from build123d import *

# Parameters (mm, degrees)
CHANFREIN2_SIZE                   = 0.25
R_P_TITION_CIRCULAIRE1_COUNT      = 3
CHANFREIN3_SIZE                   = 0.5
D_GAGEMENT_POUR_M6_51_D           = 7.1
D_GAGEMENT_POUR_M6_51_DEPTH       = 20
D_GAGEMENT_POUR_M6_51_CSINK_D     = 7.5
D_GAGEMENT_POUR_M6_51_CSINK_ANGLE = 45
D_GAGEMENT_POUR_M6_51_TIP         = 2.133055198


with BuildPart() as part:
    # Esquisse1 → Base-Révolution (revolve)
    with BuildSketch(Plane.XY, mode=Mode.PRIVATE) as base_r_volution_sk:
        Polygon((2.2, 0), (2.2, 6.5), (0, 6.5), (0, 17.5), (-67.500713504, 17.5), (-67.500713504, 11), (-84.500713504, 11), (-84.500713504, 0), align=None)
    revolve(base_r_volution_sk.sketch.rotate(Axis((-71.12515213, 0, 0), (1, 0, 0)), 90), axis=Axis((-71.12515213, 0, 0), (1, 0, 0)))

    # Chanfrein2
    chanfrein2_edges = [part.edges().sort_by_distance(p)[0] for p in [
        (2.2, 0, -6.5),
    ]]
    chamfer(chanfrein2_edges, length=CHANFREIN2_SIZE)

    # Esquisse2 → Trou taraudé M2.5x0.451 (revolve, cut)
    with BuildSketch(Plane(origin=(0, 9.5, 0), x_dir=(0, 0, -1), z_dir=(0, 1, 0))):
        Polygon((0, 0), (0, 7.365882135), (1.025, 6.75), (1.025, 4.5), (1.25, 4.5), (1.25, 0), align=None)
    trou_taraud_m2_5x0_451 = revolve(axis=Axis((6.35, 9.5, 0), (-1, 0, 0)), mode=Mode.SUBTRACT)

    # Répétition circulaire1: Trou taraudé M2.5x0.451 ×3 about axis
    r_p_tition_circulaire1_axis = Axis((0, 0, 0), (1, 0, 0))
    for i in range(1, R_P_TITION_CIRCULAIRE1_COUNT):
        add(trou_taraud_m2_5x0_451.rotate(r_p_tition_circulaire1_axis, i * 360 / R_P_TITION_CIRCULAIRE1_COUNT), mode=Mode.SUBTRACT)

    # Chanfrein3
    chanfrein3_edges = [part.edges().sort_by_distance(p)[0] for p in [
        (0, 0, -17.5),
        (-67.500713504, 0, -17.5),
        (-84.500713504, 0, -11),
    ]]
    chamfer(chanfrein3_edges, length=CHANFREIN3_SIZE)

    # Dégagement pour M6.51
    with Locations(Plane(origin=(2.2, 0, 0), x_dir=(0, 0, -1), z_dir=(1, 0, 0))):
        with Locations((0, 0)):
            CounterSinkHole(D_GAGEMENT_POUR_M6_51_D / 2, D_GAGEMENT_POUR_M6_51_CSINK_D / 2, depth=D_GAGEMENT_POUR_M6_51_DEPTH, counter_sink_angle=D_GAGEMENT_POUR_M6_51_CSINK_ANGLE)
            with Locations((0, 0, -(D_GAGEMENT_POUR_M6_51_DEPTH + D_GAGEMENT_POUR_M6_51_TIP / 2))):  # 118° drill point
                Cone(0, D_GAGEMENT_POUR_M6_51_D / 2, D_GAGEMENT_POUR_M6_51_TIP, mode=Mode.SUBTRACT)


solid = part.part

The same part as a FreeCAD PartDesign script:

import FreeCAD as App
import Part
import Sketcher
Q = App.Units.Quantity


def edges_at(feature, points):
    """Names of the edges that pass closest to the given points."""
    edges = feature.Shape.Edges
    near = lambda p: min(range(len(edges)), key=lambda i: edges[i].distToShape(Part.Vertex(*p))[0])
    return sorted({f"Edge{near(p) + 1}" for p in points})


def add_polygon(sketch, points):
    """Adds a closed chain of lines whose ends are joined by coincident constraints."""
    first, n = sketch.GeometryCount, len(points)
    for a, b in zip(points, points[1:] + points[:1]):
        sketch.addGeometry(Part.LineSegment(App.Vector(*a, 0), App.Vector(*b, 0)), False)
    for i in range(n):
        sketch.addConstraint(Sketcher.Constraint("Coincident", first + i, 2, first + (i + 1) % n, 1))

doc = App.newDocument("Part")
body = doc.addObject("PartDesign::Body", "Body")

sketch1 = body.newObject("Sketcher::SketchObject", "Sketch")
sketch1.AttachmentSupport = (doc.getObject("XY_Plane"), [""])
sketch1.MapMode = "FlatFace"
add_polygon(sketch1, [(2.2, 0), (2.2, 6.5), (0, 6.5), (0, 17.5), (-67.500714, 17.5), (-67.500714, 11), (-84.500714, 11), (-84.500714, 0)])
sketch1.addConstraint([
    Sketcher.Constraint("Vertical", 0),
    Sketcher.Constraint("Horizontal", 1),
    Sketcher.Constraint("Vertical", 2),
    Sketcher.Constraint("Horizontal", 3),
    Sketcher.Constraint("Vertical", 4),
    Sketcher.Constraint("Horizontal", 5),
    Sketcher.Constraint("Vertical", 6),
    Sketcher.Constraint("Horizontal", 7),
    Sketcher.Constraint("PointOnObject", 1, 2, -2),
    Sketcher.Constraint("PointOnObject", 6, 2, -1),
    Sketcher.Constraint("Equal", 0, 4),
    Sketcher.Constraint("DistanceX", 5, 2, 5, 1, Q("17 mm")),
    Sketcher.Constraint("DistanceY", 2, 1, 2, 2, Q("11 mm")),
    Sketcher.Constraint("DistanceX", 1, 2, 1, 1, Q("2.2 mm")),
    Sketcher.Constraint("DistanceY", 0, 1, 0, 2, Q("6.5 mm")),
    Sketcher.Constraint("DistanceX", 3, 2, 3, 1, Q("67.500714 mm")),
])
revolution = body.newObject("PartDesign::Revolution", "Revolution")
revolution.Profile = sketch1
revolution.ReferenceAxis = (sketch1, ["H_Axis"])
revolution.Angle = 360
doc.recompute()

chamfer = body.newObject("PartDesign::Chamfer", "Chamfer")
chamfer.Base = (revolution, edges_at(revolution, [(2.2, 0, -6.5)]))
chamfer.Size = 0.25

sketch2 = body.newObject("Sketcher::SketchObject", "Sketch001")
sketch2.AttachmentSupport = (doc.getObject("XZ_Plane"), [""])
sketch2.MapMode = "FlatFace"
sketch2.AttachmentOffset = App.Placement(App.Vector(0, 0, -9.5), App.Rotation())
add_polygon(sketch2, [(-7.365882, 0), (0, 0), (0, -1.25), (-4.5, -1.25), (-4.5, -1.025), (-6.75, -1.025)])
sketch2.addConstraint([
    Sketcher.Constraint("Horizontal", 0),
    Sketcher.Constraint("Vertical", 1),
    Sketcher.Constraint("Horizontal", 2),
    Sketcher.Constraint("Vertical", 3),
    Sketcher.Constraint("Horizontal", 4),
    Sketcher.Constraint("Coincident", 0, 2, -1, 1),
    Sketcher.Constraint("Angle", 5, Q("121 deg")),
    Sketcher.Constraint("DistanceX", 2, 2, 2, 1, Q("4.5 mm")),
    Sketcher.Constraint("DistanceX", 4, 2, 4, 1, Q("2.25 mm")),
    Sketcher.Constraint("DistanceY", 1, 2, 1, 1, Q("1.25 mm")),
    Sketcher.Constraint("DistanceY", 3, 1, 3, 2, Q("0.225 mm")),
])
groove = body.newObject("PartDesign::Groove", "Groove")
groove.Profile = sketch2
groove.ReferenceAxis = (sketch2, ["H_Axis"])
groove.Angle = 360
doc.recompute()

polarpattern = body.newObject("PartDesign::PolarPattern", "PolarPattern")
polarpattern.Originals = [groove]
polarpattern.Axis = (doc.getObject("X_Axis"), [""])
polarpattern.Angle = 360
polarpattern.Occurrences = 3
body.Tip = polarpattern
doc.recompute()

chamfer2 = body.newObject("PartDesign::Chamfer", "Chamfer001")
chamfer2.Base = (polarpattern, edges_at(polarpattern, [(0, 0, -17.5), (-67.501, 0, -17.5), (-84.501, 0, -11)]))
chamfer2.Size = 0.5

sketch3 = body.newObject("Sketcher::SketchObject", "Sketch002")
sketch3.AttachmentSupport = (doc.getObject("YZ_Plane"), [""])
sketch3.MapMode = "FlatFace"
sketch3.AttachmentOffset = App.Placement(App.Vector(0, 0, 2.2), App.Rotation())
sketch3.addGeometry(Part.Circle(App.Vector(0, 0, 0), App.Vector(0, 0, 1), 3.55), False)
sketch3.addConstraint([
    Sketcher.Constraint("Coincident", 0, 3, -1, 1),
    Sketcher.Constraint("Diameter", 0, Q("7.1 mm")),
])
doc.recompute()
hole = body.newObject("PartDesign::Hole", "Hole")
hole.Profile = sketch3
hole.ThreadType = "None"
hole.Diameter = 7.1
hole.DepthType = "Dimension"
hole.Depth = 20
hole.DrillPoint = "Angled"
hole.DrillPointAngle = 118
hole.HoleCutType = "Countersink"
hole.HoleCutDiameter = 7.5
hole.HoleCutCountersinkAngle = 45

doc.recompute()
